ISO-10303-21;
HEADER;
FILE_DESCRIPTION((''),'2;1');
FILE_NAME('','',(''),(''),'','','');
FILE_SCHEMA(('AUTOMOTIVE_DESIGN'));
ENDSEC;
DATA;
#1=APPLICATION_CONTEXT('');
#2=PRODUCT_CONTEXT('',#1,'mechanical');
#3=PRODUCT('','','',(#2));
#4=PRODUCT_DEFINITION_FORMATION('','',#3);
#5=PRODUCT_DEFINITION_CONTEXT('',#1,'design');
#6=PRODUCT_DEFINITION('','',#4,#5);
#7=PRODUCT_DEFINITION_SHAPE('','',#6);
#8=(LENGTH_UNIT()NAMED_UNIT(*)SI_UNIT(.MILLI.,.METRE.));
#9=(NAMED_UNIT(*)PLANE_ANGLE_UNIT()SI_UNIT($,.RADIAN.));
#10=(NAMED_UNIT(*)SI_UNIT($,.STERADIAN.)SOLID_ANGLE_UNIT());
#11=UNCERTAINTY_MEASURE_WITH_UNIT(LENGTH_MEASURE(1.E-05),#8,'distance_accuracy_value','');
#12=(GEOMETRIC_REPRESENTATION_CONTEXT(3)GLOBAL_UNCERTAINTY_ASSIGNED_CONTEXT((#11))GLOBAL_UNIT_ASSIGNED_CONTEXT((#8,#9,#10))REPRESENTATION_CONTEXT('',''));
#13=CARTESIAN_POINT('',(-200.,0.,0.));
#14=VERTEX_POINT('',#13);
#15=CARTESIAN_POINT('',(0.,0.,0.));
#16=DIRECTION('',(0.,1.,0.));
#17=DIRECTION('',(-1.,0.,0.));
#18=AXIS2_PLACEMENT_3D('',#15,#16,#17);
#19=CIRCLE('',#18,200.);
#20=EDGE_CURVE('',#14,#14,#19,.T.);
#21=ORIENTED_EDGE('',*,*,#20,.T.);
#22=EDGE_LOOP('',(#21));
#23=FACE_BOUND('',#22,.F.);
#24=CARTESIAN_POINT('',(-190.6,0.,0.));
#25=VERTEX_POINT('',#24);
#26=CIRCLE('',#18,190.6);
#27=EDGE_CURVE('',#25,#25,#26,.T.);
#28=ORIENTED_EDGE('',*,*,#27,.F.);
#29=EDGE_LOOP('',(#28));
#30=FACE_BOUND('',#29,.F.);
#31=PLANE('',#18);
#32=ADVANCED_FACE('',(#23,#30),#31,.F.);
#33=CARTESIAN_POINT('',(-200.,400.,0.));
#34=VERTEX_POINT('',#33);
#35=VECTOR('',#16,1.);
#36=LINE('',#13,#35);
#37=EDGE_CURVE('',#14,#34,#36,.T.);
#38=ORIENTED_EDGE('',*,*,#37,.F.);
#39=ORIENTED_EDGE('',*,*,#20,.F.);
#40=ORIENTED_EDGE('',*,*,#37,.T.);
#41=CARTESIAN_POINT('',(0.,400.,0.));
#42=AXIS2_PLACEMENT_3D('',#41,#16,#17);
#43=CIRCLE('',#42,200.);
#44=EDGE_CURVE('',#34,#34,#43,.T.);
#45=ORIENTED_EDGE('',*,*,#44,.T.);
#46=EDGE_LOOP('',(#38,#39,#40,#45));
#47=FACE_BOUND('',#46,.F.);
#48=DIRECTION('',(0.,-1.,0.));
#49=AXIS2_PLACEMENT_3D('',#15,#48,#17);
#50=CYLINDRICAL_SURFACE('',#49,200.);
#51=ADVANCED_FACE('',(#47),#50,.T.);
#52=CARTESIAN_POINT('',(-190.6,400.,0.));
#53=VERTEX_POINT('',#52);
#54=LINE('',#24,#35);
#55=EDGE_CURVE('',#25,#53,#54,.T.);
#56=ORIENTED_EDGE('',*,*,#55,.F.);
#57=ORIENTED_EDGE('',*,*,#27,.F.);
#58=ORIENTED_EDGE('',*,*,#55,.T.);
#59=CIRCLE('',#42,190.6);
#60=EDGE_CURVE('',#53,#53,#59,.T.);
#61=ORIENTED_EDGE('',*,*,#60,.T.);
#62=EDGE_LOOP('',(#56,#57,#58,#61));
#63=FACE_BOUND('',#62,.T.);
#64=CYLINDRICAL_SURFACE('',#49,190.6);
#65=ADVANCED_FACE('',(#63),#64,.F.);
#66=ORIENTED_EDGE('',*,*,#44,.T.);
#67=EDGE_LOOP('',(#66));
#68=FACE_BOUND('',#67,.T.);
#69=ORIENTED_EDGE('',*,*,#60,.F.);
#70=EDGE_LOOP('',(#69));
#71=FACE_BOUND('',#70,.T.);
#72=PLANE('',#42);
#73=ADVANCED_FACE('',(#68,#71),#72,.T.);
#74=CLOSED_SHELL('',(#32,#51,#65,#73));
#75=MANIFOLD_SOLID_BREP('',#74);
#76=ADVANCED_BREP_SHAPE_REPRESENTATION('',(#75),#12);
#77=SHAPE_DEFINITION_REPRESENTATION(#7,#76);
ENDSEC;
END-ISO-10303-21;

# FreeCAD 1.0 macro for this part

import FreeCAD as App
import Part
import Sketcher

V = App.Vector
Q = App.Units.Quantity

doc = App.newDocument("Part")
body = doc.addObject("PartDesign::Body", "Body")

# Sketch on XZ plane
sketch1 = body.newObject("Sketcher::SketchObject", "Sketch")
sketch1.AttachmentSupport = (doc.getObject("XZ_Plane"), [""])
sketch1.MapMode = "FlatFace"
sketch1.addGeometry([
    Part.Circle(V(0, 0, 0), V(0, 0, 1), 200),
    Part.Circle(V(0, 0, 0), V(0, 0, 1), 191),
], False)
sketch1.addConstraint([
    Sketcher.Constraint("Coincident", 0, 3, -1, 1),
    Sketcher.Constraint("Coincident", 1, 3, -1, 1),
    Sketcher.Constraint("Diameter", 0, Q("400 mm")),
    Sketcher.Constraint("Diameter", 1, Q("381.2 mm")),
])
pad1 = body.newObject("PartDesign::Pad", "Pad")
pad1.Profile = sketch1
pad1.Length = 400
pad1.Reversed = True

doc.recompute()
